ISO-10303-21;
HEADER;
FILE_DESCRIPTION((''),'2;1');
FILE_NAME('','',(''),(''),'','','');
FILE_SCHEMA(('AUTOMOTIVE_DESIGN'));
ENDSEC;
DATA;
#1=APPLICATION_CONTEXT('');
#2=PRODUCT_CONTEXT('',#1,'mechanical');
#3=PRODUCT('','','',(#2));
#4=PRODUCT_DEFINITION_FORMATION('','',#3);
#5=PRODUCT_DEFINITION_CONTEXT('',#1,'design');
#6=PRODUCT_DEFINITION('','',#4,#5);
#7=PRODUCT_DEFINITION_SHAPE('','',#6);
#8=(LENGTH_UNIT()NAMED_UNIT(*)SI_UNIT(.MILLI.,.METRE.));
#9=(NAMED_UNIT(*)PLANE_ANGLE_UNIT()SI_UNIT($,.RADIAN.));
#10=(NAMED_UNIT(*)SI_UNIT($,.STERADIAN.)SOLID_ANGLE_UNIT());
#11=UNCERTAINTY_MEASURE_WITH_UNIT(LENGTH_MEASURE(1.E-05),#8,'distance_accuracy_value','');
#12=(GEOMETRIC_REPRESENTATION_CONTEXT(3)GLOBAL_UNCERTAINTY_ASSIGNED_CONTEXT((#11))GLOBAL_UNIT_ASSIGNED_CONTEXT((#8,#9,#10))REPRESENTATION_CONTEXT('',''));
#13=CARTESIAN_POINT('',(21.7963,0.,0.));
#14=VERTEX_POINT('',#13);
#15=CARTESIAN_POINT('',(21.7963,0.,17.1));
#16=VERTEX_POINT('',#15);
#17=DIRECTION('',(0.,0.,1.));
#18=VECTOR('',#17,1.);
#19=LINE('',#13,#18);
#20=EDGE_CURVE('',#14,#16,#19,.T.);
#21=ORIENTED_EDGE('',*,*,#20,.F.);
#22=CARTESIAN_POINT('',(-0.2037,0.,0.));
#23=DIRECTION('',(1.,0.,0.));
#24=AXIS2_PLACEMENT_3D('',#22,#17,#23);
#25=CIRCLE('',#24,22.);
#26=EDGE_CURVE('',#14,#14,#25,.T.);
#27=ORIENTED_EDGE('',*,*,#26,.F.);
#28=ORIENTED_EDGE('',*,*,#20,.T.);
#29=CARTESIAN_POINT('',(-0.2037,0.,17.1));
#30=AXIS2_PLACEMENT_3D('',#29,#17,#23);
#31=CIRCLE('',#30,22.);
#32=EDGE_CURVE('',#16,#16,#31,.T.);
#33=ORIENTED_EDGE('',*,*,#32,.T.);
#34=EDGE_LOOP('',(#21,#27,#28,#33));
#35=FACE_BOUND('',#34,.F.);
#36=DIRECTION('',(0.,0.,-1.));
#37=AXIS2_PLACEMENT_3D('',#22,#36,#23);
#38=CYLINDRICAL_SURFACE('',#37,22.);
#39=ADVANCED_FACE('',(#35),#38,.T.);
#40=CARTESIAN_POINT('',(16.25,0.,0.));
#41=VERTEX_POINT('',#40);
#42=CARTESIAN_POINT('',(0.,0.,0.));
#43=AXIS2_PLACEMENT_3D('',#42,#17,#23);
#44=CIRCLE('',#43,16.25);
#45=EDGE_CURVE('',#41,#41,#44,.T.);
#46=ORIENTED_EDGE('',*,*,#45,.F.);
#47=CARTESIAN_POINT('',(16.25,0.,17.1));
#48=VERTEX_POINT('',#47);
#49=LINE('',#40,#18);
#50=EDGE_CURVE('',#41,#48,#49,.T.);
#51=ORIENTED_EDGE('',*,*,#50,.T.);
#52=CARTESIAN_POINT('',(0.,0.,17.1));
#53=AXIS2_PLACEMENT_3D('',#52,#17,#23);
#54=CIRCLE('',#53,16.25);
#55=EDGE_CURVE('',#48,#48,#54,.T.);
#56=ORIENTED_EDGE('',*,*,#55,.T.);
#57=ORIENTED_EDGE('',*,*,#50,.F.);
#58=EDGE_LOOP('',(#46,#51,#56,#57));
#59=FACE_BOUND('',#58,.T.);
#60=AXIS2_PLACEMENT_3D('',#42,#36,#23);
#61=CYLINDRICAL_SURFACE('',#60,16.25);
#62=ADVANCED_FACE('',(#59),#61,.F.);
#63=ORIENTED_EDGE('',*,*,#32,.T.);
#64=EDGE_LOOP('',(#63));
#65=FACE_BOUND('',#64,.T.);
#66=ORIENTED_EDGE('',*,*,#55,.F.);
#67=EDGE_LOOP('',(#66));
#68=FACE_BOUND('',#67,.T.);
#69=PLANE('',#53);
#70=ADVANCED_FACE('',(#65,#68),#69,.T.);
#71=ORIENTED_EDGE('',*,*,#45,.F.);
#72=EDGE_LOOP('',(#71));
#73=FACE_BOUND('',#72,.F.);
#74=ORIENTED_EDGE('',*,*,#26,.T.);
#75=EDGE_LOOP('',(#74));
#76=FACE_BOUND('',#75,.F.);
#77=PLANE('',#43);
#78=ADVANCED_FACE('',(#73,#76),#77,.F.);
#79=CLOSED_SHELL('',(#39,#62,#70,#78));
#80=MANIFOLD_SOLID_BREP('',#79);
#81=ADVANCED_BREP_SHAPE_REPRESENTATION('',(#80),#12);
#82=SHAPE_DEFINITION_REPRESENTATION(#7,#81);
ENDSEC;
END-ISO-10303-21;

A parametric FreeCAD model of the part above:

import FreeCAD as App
import Part
import Sketcher
from FreeCAD import Vector

doc = App.newDocument("Part")
body = doc.addObject("PartDesign::Body", "Body")

# Sketch on XY plane
sketch1 = doc.addObject("Sketcher::SketchObject", "Sketch")
body.addObject(sketch1)
sketch1.AttachmentSupport = (doc.XY_Plane, [""])
sketch1.MapMode = "FlatFace"
sketch1.addGeometry([
    Part.Circle(Vector(0, 0, 0), Vector(0, 0, 1), 22),
    Part.Circle(Vector(0, 0, 0), Vector(0, 0, 1), 16),
], False)
sketch1.addConstraint([
    Sketcher.Constraint("Coincident", 1, 3, -1, 1),
    Sketcher.Constraint("PointOnObject", 0, 3, -1),
    Sketcher.Constraint("Diameter", 0, 44.0),
    Sketcher.Constraint("Diameter", 1, 32.5),
    Sketcher.Constraint("DistanceX", 0, 3, -1, 1, 0.2037),
])
pad1 = doc.addObject("PartDesign::Pad", "Pad")
body.addObject(pad1)
pad1.Profile = sketch1
pad1.Length = 17.1

doc.recompute()
